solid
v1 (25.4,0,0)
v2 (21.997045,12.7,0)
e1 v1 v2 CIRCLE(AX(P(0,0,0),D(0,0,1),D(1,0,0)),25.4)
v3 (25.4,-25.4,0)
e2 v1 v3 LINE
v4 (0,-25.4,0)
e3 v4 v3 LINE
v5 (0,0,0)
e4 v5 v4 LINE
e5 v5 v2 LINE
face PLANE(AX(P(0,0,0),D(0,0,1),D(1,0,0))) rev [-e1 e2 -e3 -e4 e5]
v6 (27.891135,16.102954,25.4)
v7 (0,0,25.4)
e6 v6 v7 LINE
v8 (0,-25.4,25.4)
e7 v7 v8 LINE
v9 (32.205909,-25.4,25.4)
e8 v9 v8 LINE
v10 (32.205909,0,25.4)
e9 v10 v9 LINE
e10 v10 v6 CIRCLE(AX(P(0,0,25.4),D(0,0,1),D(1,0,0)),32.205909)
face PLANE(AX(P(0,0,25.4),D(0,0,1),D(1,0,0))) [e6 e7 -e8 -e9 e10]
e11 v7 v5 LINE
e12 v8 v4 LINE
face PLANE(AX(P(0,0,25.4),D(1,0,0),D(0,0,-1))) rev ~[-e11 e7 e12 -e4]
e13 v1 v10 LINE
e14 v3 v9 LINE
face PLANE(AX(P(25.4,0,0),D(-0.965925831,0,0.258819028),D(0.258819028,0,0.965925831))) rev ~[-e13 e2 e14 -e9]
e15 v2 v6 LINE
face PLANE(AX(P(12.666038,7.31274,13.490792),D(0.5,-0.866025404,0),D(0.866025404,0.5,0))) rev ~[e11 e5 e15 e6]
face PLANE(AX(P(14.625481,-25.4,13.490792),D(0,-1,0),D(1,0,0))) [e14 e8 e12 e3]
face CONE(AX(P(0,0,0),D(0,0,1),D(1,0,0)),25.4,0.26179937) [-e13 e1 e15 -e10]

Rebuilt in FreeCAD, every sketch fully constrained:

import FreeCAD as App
import Part
import Sketcher

V = App.Vector
Q = App.Units.Quantity


def add_polygon(sketch, points):
    """Adds a closed chain of lines whose ends are joined by coincident constraints."""
    first, n = sketch.GeometryCount, len(points)
    for a, b in zip(points, points[1:] + points[:1]):
        sketch.addGeometry(Part.LineSegment(App.Vector(*a, 0), App.Vector(*b, 0)), False)
    for i in range(n):
        sketch.addConstraint(Sketcher.Constraint("Coincident", first + i, 2, first + (i + 1) % n, 1))

doc = App.newDocument("Part")
body = doc.addObject("PartDesign::Body", "Body")

# Sketch on XZ plane
sketch1 = doc.addObject("Sketcher::SketchObject", "Sketch")
body.addObject(sketch1)
sketch1.AttachmentSupport = (doc.XZ_Plane, [""])
sketch1.MapMode = "FlatFace"
add_polygon(sketch1, [(0, 25.4), (0, 0), (25.4, 0), (32.205909, 25.4)])  # lines 0-3
sketch1.addConstraint(Sketcher.Constraint("Vertical", 0))
sketch1.addConstraint(Sketcher.Constraint("Horizontal", 1))
sketch1.addConstraint(Sketcher.Constraint("Horizontal", 3))
sketch1.addConstraint(Sketcher.Constraint("Coincident", 0, 2, -1, 1))
sketch1.addConstraint(Sketcher.Constraint("Equal", 1, 0))
sketch1.addConstraint(Sketcher.Constraint("DistanceX", 1, 1, 1, 2, Q("1 in")))
sketch1.addConstraint(Sketcher.Constraint("Angle", 2, Q("75.000001 deg")))
pad1 = doc.addObject("PartDesign::Pad", "Pad")
body.addObject(pad1)
pad1.Profile = sketch1
pad1.Length = Q("1 in")

# Sketch on XZ plane
sketch2 = doc.addObject("Sketcher::SketchObject", "Sketch001")
body.addObject(sketch2)
sketch2.AttachmentSupport = (doc.XZ_Plane, [""])
sketch2.MapMode = "FlatFace"
add_polygon(sketch2, [(0, 25.4), (0, 0), (25.4, 0), (32.205909, 25.4)])  # lines 0-3
sketch2.addConstraint(Sketcher.Constraint("Vertical", 0))
sketch2.addConstraint(Sketcher.Constraint("Horizontal", 1))
sketch2.addConstraint(Sketcher.Constraint("Horizontal", 3))
sketch2.addConstraint(Sketcher.Constraint("Coincident", 0, 2, -1, 1))
sketch2.addConstraint(Sketcher.Constraint("Equal", 1, 0))
sketch2.addConstraint(Sketcher.Constraint("DistanceX", 1, 1, 1, 2, Q("1 in")))
sketch2.addConstraint(Sketcher.Constraint("Angle", 2, Q("75.000001 deg")))
revolution = doc.addObject("PartDesign::Revolution", "Revolution")
body.addObject(revolution)
revolution.Profile = sketch2
revolution.ReferenceAxis = (sketch2, ["V_Axis"])
revolution.Angle = 30

doc.recompute()
